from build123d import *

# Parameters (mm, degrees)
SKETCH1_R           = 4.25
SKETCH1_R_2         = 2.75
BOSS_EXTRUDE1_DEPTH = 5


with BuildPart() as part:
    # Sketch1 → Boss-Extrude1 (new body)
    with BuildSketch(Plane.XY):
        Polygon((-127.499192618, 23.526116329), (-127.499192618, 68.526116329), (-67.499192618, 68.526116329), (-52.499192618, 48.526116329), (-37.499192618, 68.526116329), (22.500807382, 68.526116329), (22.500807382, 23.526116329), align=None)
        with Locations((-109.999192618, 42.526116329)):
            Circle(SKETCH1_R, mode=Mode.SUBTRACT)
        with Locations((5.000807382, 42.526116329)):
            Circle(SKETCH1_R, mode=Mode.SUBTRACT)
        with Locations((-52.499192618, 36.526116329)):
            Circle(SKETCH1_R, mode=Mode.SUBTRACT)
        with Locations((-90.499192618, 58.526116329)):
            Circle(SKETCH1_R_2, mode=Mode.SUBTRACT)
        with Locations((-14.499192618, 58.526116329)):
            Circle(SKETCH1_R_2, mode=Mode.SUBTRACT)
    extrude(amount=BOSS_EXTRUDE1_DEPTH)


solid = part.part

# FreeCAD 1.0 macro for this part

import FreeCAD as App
import Part
import Sketcher
Q = App.Units.Quantity

doc = App.newDocument("Part")
body = doc.addObject("PartDesign::Body", "Body")

# Sketch on XY plane
sketch1 = body.newObject("Sketcher::SketchObject", "Sketch")
sketch1.AttachmentSupport = (doc.getObject("XY_Plane"), [""])
sketch1.MapMode = "FlatFace"
sketch1.addGeometry(Part.LineSegment(App.Vector(-127.5, 68.5, 0), App.Vector(-127.5, 23.5, 0)), False)
sketch1.addGeometry(Part.LineSegment(App.Vector(-127.5, 23.5, 0), App.Vector(22.5, 23.5, 0)), False)
sketch1.addGeometry(Part.LineSegment(App.Vector(22.5, 23.5, 0), App.Vector(22.5, 68.5, 0)), False)
sketch1.addGeometry(Part.LineSegment(App.Vector(22.5, 68.5, 0), App.Vector(-37.5, 68.5, 0)), False)
sketch1.addGeometry(Part.LineSegment(App.Vector(-37.5, 68.5, 0), App.Vector(-52.5, 48.5, 0)), False)
sketch1.addGeometry(Part.LineSegment(App.Vector(-52.5, 48.5, 0), App.Vector(-67.5, 68.5, 0)), False)
sketch1.addGeometry(Part.LineSegment(App.Vector(-67.5, 68.5, 0), App.Vector(-127.5, 68.5, 0)), False)
sketch1.addGeometry(Part.Circle(App.Vector(5, 42.5, 0), App.Vector(0, 0, 1), 4.2), False)
sketch1.addGeometry(Part.Circle(App.Vector(-52.5, 36.5, 0), App.Vector(0, 0, 1), 4.2), False)
sketch1.addGeometry(Part.Circle(App.Vector(-110, 42.5, 0), App.Vector(0, 0, 1), 4.2), False)
sketch1.addGeometry(Part.Circle(App.Vector(-14.5, 58.5, 0), App.Vector(0, 0, 1), 2.8), False)
sketch1.addGeometry(Part.Circle(App.Vector(-90.5, 58.5, 0), App.Vector(0, 0, 1), 2.8), False)
sketch1.addConstraint(Sketcher.Constraint("Coincident", 0, 2, 1, 1))
sketch1.addConstraint(Sketcher.Constraint("Coincident", 1, 2, 2, 1))
sketch1.addConstraint(Sketcher.Constraint("Coincident", 2, 2, 3, 1))
sketch1.addConstraint(Sketcher.Constraint("Coincident", 3, 2, 4, 1))
sketch1.addConstraint(Sketcher.Constraint("Coincident", 4, 2, 5, 1))
sketch1.addConstraint(Sketcher.Constraint("Coincident", 5, 2, 6, 1))
sketch1.addConstraint(Sketcher.Constraint("Coincident", 6, 2, 0, 1))
sketch1.addConstraint(Sketcher.Constraint("Vertical", 0))
sketch1.addConstraint(Sketcher.Constraint("Horizontal", 1))
sketch1.addConstraint(Sketcher.Constraint("Vertical", 2))
sketch1.addConstraint(Sketcher.Constraint("Horizontal", 3))
sketch1.addConstraint(Sketcher.Constraint("Horizontal", 6))
sketch1.addConstraint(Sketcher.Constraint("Equal", 7, 8))
sketch1.addConstraint(Sketcher.Constraint("Equal", 8, 9))
sketch1.addConstraint(Sketcher.Constraint("Equal", 10, 11))
sketch1.addConstraint(Sketcher.Constraint("Horizontal", 7, 3, 9, 3))
sketch1.addConstraint(Sketcher.Constraint("Horizontal", 10, 3, 11, 3))
sketch1.addConstraint(Sketcher.Constraint("Horizontal", 3, 2, 5, 2))
sketch1.addConstraint(Sketcher.Constraint("Vertical", 8, 3, 4, 2))
sketch1.addConstraint(Sketcher.Constraint("Equal", 3, 6))
sketch1.addConstraint(Sketcher.Constraint("Equal", 4, 5))
sketch1.addConstraint(Sketcher.Constraint("Diameter", 7, Q("8.5 mm")))
sketch1.addConstraint(Sketcher.Constraint("Diameter", 10, Q("5.5 mm")))
sketch1.addConstraint(Sketcher.Constraint("DistanceX", 1, 1, 1, 2, Q("150 mm")))
sketch1.addConstraint(Sketcher.Constraint("DistanceX", 3, 2, 3, 1, Q("60 mm")))
sketch1.addConstraint(Sketcher.Constraint("DistanceY", 0, 2, 0, 1, Q("45 mm")))
sketch1.addConstraint(Sketcher.Constraint("Distance", 4, Q("25 mm")))
sketch1.addConstraint(Sketcher.Constraint("DistanceY", 8, 3, 7, 3, Q("6 mm")))
sketch1.addConstraint(Sketcher.Constraint("DistanceX", 9, 3, 7, 3, Q("115 mm")))
sketch1.addConstraint(Sketcher.Constraint("DistanceY", 7, 3, 10, 3, Q("16 mm")))
sketch1.addConstraint(Sketcher.Constraint("DistanceX", 8, 3, 10, 3, Q("38 mm")))
sketch1.addConstraint(Sketcher.Constraint("DistanceX", 11, 3, 8, 3, Q("38 mm")))
sketch1.addConstraint(Sketcher.Constraint("DistanceY", 0, 2, 9, 3, Q("19 mm")))
sketch1.addConstraint(Sketcher.Constraint("DistanceX", 8, 3, 7, 3, Q("57.5 mm")))
sketch1.addConstraint(Sketcher.Constraint("DistanceX", -1, 1, 7, 3, Q("5.000807 mm")))
sketch1.addConstraint(Sketcher.Constraint("DistanceY", -1, 1, 7, 3, Q("42.526116 mm")))
pad1 = body.newObject("PartDesign::Pad", "Pad")
pad1.Profile = sketch1
pad1.Length = 5

doc.recompute()
